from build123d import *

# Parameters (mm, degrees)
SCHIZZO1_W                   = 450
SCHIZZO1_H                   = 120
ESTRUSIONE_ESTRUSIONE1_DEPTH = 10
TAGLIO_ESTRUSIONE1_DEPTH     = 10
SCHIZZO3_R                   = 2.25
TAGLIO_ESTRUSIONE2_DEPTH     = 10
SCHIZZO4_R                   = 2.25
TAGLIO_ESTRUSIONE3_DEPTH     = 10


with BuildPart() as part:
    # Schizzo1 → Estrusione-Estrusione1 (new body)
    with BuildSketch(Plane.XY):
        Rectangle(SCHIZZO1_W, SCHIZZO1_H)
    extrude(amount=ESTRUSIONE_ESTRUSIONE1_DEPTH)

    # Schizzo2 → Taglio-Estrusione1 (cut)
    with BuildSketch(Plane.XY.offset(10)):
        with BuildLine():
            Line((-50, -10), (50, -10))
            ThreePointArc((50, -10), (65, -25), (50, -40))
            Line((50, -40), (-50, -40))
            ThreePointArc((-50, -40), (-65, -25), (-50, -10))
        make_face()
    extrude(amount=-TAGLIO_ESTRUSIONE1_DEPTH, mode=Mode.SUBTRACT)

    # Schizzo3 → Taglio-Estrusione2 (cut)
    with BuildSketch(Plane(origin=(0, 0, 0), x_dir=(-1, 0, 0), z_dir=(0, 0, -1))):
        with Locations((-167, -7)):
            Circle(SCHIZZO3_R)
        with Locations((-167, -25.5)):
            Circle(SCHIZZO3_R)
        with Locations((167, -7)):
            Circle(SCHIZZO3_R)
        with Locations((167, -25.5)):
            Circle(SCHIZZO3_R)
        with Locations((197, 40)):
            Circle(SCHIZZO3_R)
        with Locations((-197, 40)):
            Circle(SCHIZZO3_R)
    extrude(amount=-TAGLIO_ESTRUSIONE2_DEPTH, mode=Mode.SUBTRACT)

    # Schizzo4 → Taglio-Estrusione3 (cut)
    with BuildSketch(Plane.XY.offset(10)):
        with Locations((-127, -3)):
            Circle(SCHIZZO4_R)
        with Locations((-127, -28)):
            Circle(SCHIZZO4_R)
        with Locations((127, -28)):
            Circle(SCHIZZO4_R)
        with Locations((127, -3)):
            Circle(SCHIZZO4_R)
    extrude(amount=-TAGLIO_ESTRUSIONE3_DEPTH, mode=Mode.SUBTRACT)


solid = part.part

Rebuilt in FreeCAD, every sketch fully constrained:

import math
import FreeCAD as App
import Part
import Sketcher

V = App.Vector
Q = App.Units.Quantity


def add_polygon(sketch, points):
    """Adds a closed chain of lines whose ends are joined by coincident constraints."""
    first, n = sketch.GeometryCount, len(points)
    for a, b in zip(points, points[1:] + points[:1]):
        sketch.addGeometry(Part.LineSegment(App.Vector(*a, 0), App.Vector(*b, 0)), False)
    for i in range(n):
        sketch.addConstraint(Sketcher.Constraint("Coincident", first + i, 2, first + (i + 1) % n, 1))

doc = App.newDocument("Part")
body = doc.addObject("PartDesign::Body", "Body")

sketch1 = body.newObject("Sketcher::SketchObject", "Sketch")
sketch1.AttachmentSupport = (doc.getObject("XY_Plane"), [""])
sketch1.MapMode = "FlatFace"
add_polygon(sketch1, [(-225, 60), (-225, -60), (225, -60), (225, 60)])
sketch1.addConstraint(Sketcher.Constraint("Vertical", 0))
sketch1.addConstraint(Sketcher.Constraint("Horizontal", 1))
sketch1.addConstraint(Sketcher.Constraint("Vertical", 2))
sketch1.addConstraint(Sketcher.Constraint("Horizontal", 3))
sketch1.addConstraint(Sketcher.Constraint("Symmetric", 0, 2, 2, 2, -1, 1))
sketch1.addConstraint(Sketcher.Constraint("DistanceX", 1, 1, 1, 2, Q("450 mm")))
sketch1.addConstraint(Sketcher.Constraint("DistanceY", 0, 2, 0, 1, Q("120 mm")))
pad1 = body.newObject("PartDesign::Pad", "Pad")
pad1.Profile = sketch1
pad1.Length = 10

sketch2 = body.newObject("Sketcher::SketchObject", "Sketch001")
sketch2.AttachmentSupport = (doc.getObject("XY_Plane"), [""])
sketch2.MapMode = "FlatFace"
sketch2.AttachmentOffset = App.Placement(V(0, 0, 10), App.Rotation())
sketch2.addGeometry(Part.LineSegment(V(50, -10, 0), V(-50, -10, 0)), False)
sketch2.addGeometry(Part.ArcOfCircle(Part.Circle(V(-50, -25, 0), V(0, 0, 1), 15), math.radians(90), math.radians(270)), False)
sketch2.addGeometry(Part.LineSegment(V(-50, -40, 0), V(50, -40, 0)), False)
sketch2.addGeometry(Part.ArcOfCircle(Part.Circle(V(50, -25, 0), V(0, 0, 1), 15), math.radians(-90), math.radians(90)), False)
sketch2.addConstraint(Sketcher.Constraint("Tangent", 0, 2, 1, 1))
sketch2.addConstraint(Sketcher.Constraint("Tangent", 1, 2, 2, 1))
sketch2.addConstraint(Sketcher.Constraint("Tangent", 2, 2, 3, 1))
sketch2.addConstraint(Sketcher.Constraint("Tangent", 3, 2, 0, 1))
sketch2.addConstraint(Sketcher.Constraint("Horizontal", 0))
sketch2.addConstraint(Sketcher.Constraint("Horizontal", 2))
sketch2.addConstraint(Sketcher.Constraint("Radius", 1, Q("15 mm")))
sketch2.addConstraint(Sketcher.Constraint("DistanceX", 0, 2, 0, 1, Q("100 mm")))
sketch2.addConstraint(Sketcher.Constraint("DistanceX", 1, 3, -1, 1, Q("50 mm")))
sketch2.addConstraint(Sketcher.Constraint("DistanceY", 1, 3, -1, 1, Q("25 mm")))
pocket1 = body.newObject("PartDesign::Pocket", "Pocket")
pocket1.Profile = sketch2
pocket1.Length = 10

sketch3 = body.newObject("Sketcher::SketchObject", "Sketch002")
sketch3.AttachmentSupport = (doc.getObject("XY_Plane"), [""])
sketch3.MapMode = "FlatFace"
sketch3.addGeometry(Part.Circle(V(167, -7, 0), V(0, 0, 1), 2.2), False)
sketch3.addGeometry(Part.Circle(V(167, -25.5, 0), V(0, 0, 1), 2.2), False)
sketch3.addGeometry(Part.Circle(V(-167, -7, 0), V(0, 0, 1), 2.2), False)
sketch3.addGeometry(Part.Circle(V(-167, -25.5, 0), V(0, 0, 1), 2.2), False)
sketch3.addGeometry(Part.Circle(V(-197, 40, 0), V(0, 0, 1), 2.2), False)
sketch3.addGeometry(Part.Circle(V(197, 40, 0), V(0, 0, 1), 2.2), False)
sketch3.addConstraint(Sketcher.Constraint("Equal", 0, 1))
sketch3.addConstraint(Sketcher.Constraint("Equal", 1, 2))
sketch3.addConstraint(Sketcher.Constraint("Equal", 2, 3))
sketch3.addConstraint(Sketcher.Constraint("Equal", 3, 4))
sketch3.addConstraint(Sketcher.Constraint("Equal", 4, 5))
sketch3.addConstraint(Sketcher.Constraint("Symmetric", 0, 3, 2, 3, -2))
sketch3.addConstraint(Sketcher.Constraint("Symmetric", 1, 3, 3, 3, -2))
sketch3.addConstraint(Sketcher.Constraint("Symmetric", 4, 3, 5, 3, -2))
sketch3.addConstraint(Sketcher.Constraint("Vertical", 0, 3, 1, 3))
sketch3.addConstraint(Sketcher.Constraint("Diameter", 0, Q("4.5 mm")))
sketch3.addConstraint(Sketcher.Constraint("DistanceX", -1, 1, 0, 3, Q("167 mm")))
sketch3.addConstraint(Sketcher.Constraint("DistanceY", 0, 3, -1, 1, Q("7 mm")))
sketch3.addConstraint(Sketcher.Constraint("DistanceX", 4, 3, -1, 1, Q("197 mm")))
sketch3.addConstraint(Sketcher.Constraint("DistanceY", -1, 1, 4, 3, Q("40 mm")))
sketch3.addConstraint(Sketcher.Constraint("DistanceY", 1, 3, -1, 1, Q("25.5 mm")))
pocket2 = body.newObject("PartDesign::Pocket", "Pocket001")
pocket2.Profile = sketch3
pocket2.Length = 10
pocket2.Reversed = True

sketch4 = body.newObject("Sketcher::SketchObject", "Sketch003")
sketch4.AttachmentSupport = (doc.getObject("XY_Plane"), [""])
sketch4.MapMode = "FlatFace"
sketch4.AttachmentOffset = App.Placement(V(0, 0, 10), App.Rotation())
sketch4.addGeometry(Part.Circle(V(-127, -3, 0), V(0, 0, 1), 2.2), False)
sketch4.addGeometry(Part.Circle(V(-127, -28, 0), V(0, 0, 1), 2.2), False)
sketch4.addGeometry(Part.Circle(V(127, -28, 0), V(0, 0, 1), 2.2), False)
sketch4.addGeometry(Part.Circle(V(127, -3, 0), V(0, 0, 1), 2.2), False)
sketch4.addConstraint(Sketcher.Constraint("Equal", 0, 1))
sketch4.addConstraint(Sketcher.Constraint("Equal", 1, 2))
sketch4.addConstraint(Sketcher.Constraint("Equal", 2, 3))
sketch4.addConstraint(Sketcher.Constraint("Symmetric", 1, 3, 2, 3, -2))
sketch4.addConstraint(Sketcher.Constraint("Symmetric", 0, 3, 3, 3, -2))
sketch4.addConstraint(Sketcher.Constraint("Vertical", 0, 3, 1, 3))
sketch4.addConstraint(Sketcher.Constraint("Diameter", 0, Q("4.5 mm")))
sketch4.addConstraint(Sketcher.Constraint("DistanceX", 0, 3, -1, 1, Q("127 mm")))
sketch4.addConstraint(Sketcher.Constraint("DistanceY", 0, 3, -1, 1, Q("3 mm")))
sketch4.addConstraint(Sketcher.Constraint("DistanceY", 1, 3, -1, 1, Q("28 mm")))
pocket3 = body.newObject("PartDesign::Pocket", "Pocket002")
pocket3.Profile = sketch4
pocket3.Length = 10

doc.recompute()
